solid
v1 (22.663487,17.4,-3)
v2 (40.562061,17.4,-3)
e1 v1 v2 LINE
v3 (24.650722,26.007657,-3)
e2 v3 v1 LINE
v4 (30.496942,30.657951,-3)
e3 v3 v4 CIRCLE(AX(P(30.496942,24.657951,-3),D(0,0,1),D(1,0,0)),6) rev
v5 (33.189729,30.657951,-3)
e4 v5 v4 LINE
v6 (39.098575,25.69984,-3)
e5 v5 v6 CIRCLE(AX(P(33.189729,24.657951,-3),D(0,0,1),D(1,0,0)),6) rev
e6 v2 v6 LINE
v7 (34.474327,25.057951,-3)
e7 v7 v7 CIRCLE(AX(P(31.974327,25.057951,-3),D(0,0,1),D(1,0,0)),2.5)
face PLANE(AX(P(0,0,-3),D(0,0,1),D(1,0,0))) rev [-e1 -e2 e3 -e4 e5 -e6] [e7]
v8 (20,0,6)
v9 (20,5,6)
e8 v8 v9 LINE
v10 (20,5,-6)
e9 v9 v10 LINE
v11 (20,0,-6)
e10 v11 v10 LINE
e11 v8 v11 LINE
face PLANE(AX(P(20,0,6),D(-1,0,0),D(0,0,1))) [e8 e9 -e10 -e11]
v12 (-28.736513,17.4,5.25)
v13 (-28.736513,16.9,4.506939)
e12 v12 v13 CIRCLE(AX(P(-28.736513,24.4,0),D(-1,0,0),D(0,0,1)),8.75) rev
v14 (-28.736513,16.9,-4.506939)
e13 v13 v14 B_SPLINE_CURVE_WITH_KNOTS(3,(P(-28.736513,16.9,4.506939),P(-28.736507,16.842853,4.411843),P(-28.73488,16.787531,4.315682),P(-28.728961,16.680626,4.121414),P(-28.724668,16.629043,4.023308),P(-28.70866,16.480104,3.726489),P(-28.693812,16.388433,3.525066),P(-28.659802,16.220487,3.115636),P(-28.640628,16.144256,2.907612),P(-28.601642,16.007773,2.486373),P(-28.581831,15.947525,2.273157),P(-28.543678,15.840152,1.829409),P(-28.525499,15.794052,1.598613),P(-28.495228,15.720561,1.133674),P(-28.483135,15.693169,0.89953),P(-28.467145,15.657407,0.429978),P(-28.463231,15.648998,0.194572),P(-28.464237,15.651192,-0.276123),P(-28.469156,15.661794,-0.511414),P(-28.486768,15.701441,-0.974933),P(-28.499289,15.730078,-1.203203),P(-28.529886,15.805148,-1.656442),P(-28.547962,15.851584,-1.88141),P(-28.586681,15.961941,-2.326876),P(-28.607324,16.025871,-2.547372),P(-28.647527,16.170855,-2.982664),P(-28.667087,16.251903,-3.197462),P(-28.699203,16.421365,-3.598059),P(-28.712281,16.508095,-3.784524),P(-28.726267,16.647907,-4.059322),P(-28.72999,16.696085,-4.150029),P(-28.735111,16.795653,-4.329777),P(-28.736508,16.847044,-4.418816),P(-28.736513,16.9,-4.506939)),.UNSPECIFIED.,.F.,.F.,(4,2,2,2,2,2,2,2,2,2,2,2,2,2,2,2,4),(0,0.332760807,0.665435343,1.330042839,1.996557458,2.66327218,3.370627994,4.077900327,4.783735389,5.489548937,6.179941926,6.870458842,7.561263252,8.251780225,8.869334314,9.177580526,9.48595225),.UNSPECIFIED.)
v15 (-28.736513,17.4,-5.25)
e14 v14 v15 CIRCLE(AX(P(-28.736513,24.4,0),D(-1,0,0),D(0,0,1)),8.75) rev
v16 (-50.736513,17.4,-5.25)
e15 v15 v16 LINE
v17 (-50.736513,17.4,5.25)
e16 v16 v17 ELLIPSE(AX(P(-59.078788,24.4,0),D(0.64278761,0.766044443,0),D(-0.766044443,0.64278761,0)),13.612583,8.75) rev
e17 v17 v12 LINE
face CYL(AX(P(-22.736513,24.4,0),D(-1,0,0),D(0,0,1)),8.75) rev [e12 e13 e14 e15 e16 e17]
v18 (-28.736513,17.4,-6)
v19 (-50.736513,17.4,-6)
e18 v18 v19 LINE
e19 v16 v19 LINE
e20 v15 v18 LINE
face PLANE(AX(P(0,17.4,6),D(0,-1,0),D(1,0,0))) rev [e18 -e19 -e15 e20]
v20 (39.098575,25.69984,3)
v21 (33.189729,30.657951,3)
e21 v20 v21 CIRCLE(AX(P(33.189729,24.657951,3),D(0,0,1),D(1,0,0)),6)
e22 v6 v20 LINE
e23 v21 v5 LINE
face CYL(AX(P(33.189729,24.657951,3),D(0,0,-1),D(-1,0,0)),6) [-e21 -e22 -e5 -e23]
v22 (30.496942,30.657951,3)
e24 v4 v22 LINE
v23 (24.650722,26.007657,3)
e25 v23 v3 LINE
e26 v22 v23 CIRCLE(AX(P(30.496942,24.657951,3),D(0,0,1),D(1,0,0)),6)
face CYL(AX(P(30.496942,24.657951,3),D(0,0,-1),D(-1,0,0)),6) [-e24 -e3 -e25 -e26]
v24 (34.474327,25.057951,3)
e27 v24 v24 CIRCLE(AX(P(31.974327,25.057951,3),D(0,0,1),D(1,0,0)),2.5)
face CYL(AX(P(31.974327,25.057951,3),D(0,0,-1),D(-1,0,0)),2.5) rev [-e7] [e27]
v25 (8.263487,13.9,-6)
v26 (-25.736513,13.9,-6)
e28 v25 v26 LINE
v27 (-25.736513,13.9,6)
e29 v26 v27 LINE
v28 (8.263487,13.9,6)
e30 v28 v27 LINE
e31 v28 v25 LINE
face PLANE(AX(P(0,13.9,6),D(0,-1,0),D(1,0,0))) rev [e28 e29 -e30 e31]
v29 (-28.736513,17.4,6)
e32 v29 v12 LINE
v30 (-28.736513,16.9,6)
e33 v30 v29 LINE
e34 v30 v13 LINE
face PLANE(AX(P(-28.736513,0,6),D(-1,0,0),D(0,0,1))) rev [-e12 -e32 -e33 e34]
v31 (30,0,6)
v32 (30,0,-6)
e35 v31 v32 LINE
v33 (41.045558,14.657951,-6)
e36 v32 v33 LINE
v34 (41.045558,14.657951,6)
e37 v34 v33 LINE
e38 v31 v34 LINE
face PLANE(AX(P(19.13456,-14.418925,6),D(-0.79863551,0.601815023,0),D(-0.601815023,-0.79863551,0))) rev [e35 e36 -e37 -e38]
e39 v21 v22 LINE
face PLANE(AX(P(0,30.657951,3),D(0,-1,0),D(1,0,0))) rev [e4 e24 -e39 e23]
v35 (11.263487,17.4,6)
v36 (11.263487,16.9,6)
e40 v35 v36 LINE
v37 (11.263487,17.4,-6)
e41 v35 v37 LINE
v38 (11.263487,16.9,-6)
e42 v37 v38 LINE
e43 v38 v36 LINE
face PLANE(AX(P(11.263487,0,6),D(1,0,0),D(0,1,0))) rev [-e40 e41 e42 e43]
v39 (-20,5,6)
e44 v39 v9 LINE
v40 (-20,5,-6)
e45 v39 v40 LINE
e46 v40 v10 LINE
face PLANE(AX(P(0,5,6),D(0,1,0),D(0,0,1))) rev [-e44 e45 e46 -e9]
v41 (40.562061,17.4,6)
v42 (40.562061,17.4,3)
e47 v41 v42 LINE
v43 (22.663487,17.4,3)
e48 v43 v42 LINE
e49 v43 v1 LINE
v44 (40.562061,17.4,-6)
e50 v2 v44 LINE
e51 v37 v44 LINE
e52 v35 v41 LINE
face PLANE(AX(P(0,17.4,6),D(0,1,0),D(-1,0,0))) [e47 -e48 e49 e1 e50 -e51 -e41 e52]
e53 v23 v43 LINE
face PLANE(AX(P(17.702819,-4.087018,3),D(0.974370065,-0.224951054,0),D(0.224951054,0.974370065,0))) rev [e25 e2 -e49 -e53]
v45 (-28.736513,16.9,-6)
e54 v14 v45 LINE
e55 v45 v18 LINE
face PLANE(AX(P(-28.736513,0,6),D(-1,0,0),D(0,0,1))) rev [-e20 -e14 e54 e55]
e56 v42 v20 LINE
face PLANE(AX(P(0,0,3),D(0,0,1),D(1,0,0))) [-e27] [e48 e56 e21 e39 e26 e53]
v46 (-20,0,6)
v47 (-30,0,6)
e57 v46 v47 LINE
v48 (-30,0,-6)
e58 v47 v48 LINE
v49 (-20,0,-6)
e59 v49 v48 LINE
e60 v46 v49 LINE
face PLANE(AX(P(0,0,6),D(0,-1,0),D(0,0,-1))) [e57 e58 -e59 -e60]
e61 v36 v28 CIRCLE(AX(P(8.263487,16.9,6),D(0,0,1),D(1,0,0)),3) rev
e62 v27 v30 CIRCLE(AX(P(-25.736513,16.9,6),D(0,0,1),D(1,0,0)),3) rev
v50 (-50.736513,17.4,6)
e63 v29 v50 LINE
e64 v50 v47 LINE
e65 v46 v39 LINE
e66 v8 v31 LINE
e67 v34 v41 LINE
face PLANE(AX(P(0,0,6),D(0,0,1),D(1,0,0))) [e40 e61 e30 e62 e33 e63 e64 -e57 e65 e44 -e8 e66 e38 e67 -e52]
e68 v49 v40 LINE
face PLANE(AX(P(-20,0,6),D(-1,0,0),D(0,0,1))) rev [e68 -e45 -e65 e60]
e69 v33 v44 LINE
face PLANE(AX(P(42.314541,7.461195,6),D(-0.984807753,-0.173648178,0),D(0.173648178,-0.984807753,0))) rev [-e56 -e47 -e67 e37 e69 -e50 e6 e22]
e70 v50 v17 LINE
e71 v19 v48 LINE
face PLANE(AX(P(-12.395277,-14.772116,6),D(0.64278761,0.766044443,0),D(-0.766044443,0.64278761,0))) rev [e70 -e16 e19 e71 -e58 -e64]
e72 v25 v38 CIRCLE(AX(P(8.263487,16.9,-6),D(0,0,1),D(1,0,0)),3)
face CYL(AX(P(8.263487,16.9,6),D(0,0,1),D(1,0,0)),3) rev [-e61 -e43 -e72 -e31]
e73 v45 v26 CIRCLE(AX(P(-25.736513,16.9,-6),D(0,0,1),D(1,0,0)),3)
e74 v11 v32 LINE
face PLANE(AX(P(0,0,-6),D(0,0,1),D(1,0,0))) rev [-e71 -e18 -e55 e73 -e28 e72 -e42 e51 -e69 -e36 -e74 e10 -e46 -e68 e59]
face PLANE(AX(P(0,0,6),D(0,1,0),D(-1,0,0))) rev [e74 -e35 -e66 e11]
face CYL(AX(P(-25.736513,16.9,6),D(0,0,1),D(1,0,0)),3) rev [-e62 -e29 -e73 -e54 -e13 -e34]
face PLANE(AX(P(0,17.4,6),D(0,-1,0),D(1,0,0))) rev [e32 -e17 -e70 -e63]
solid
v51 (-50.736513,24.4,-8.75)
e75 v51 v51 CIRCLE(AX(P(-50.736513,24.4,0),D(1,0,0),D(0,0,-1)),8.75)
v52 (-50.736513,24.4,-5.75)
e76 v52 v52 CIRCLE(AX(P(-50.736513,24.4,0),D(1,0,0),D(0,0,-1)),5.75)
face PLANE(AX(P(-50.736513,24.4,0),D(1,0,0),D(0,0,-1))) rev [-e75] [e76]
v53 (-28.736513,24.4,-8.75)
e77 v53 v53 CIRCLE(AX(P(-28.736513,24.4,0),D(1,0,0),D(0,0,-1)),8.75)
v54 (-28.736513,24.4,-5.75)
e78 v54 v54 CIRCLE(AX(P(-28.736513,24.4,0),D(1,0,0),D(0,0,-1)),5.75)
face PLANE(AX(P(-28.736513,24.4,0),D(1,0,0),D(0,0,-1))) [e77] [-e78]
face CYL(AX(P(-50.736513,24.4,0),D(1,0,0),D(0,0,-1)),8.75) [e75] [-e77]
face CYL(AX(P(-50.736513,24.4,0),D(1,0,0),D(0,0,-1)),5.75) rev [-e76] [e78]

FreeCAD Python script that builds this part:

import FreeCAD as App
import Part
import Sketcher
Q = App.Units.Quantity


def edges_at(feature, points):
    """Names of the edges that pass closest to the given points."""
    edges = feature.Shape.Edges
    near = lambda p: min(range(len(edges)), key=lambda i: edges[i].distToShape(Part.Vertex(*p))[0])
    return sorted({f"Edge{near(p) + 1}" for p in points})

doc = App.newDocument("Part")
body = doc.addObject("PartDesign::Body", "Body")

# Sketch on XY plane
sketch1 = body.newObject("Sketcher::SketchObject", "Sketch")
sketch1.AttachmentSupport = (doc.getObject("XY_Plane"), [""])
sketch1.MapMode = "FlatFace"
sketch1.addGeometry(Part.LineSegment(App.Vector(20, 0, 0), App.Vector(30, 0, 0)), False)
sketch1.addGeometry(Part.LineSegment(App.Vector(30, 0, 0), App.Vector(41.045558, 14.657951, 0)), False)
sketch1.addGeometry(Part.LineSegment(App.Vector(41.045558, 14.657951, 0), App.Vector(40.562061, 17.4, 0)), False)
sketch1.addGeometry(Part.LineSegment(App.Vector(40.562061, 17.4, 0), App.Vector(11.263487, 17.4, 0)), False)
sketch1.addGeometry(Part.LineSegment(App.Vector(11.263487, 17.4, 0), App.Vector(11.263487, 13.9, 0)), False)
sketch1.addGeometry(Part.LineSegment(App.Vector(11.263487, 13.9, 0), App.Vector(-28.736513, 13.9, 0)), False)
sketch1.addGeometry(Part.LineSegment(App.Vector(-28.736513, 13.9, 0), App.Vector(-28.736513, 17.4, 0)), False)
sketch1.addGeometry(Part.LineSegment(App.Vector(-28.736513, 17.4, 0), App.Vector(-50.736513, 17.4, 0)), False)
sketch1.addGeometry(Part.LineSegment(App.Vector(-50.736513, 17.4, 0), App.Vector(-30, 0, 0)), False)
sketch1.addGeometry(Part.LineSegment(App.Vector(-30, 0, 0), App.Vector(-20, 0, 0)), False)
sketch1.addGeometry(Part.LineSegment(App.Vector(-20, 0, 0), App.Vector(-20, 5, 0)), False)
sketch1.addGeometry(Part.LineSegment(App.Vector(-20, 5, 0), App.Vector(20, 5, 0)), False)
sketch1.addGeometry(Part.LineSegment(App.Vector(20, 5, 0), App.Vector(20, 0, 0)), False)
sketch1.addConstraint(Sketcher.Constraint("Coincident", 0, 2, 1, 1))
sketch1.addConstraint(Sketcher.Constraint("Coincident", 1, 2, 2, 1))
sketch1.addConstraint(Sketcher.Constraint("Coincident", 2, 2, 3, 1))
sketch1.addConstraint(Sketcher.Constraint("Coincident", 3, 2, 4, 1))
sketch1.addConstraint(Sketcher.Constraint("Coincident", 4, 2, 5, 1))
sketch1.addConstraint(Sketcher.Constraint("Coincident", 5, 2, 6, 1))
sketch1.addConstraint(Sketcher.Constraint("Coincident", 6, 2, 7, 1))
sketch1.addConstraint(Sketcher.Constraint("Coincident", 7, 2, 8, 1))
sketch1.addConstraint(Sketcher.Constraint("Coincident", 8, 2, 9, 1))
sketch1.addConstraint(Sketcher.Constraint("Coincident", 9, 2, 10, 1))
sketch1.addConstraint(Sketcher.Constraint("Coincident", 10, 2, 11, 1))
sketch1.addConstraint(Sketcher.Constraint("Coincident", 11, 2, 12, 1))
sketch1.addConstraint(Sketcher.Constraint("Coincident", 12, 2, 0, 1))
sketch1.addConstraint(Sketcher.Constraint("Horizontal", 0))
sketch1.addConstraint(Sketcher.Constraint("Horizontal", 3))
sketch1.addConstraint(Sketcher.Constraint("Vertical", 4))
sketch1.addConstraint(Sketcher.Constraint("Horizontal", 5))
sketch1.addConstraint(Sketcher.Constraint("Vertical", 6))
sketch1.addConstraint(Sketcher.Constraint("Horizontal", 7))
sketch1.addConstraint(Sketcher.Constraint("Horizontal", 9))
sketch1.addConstraint(Sketcher.Constraint("Vertical", 10))
sketch1.addConstraint(Sketcher.Constraint("Horizontal", 11))
sketch1.addConstraint(Sketcher.Constraint("Vertical", 12))
sketch1.addConstraint(Sketcher.Constraint("Symmetric", 0, 2, 8, 2, -1, 1))
sketch1.addConstraint(Sketcher.Constraint("Symmetric", 9, 2, 12, 2, -2))
sketch1.addConstraint(Sketcher.Constraint("Horizontal", 3, 2, 6, 2))
sketch1.addConstraint(Sketcher.Constraint("Equal", 5, 11))
sketch1.addConstraint(Sketcher.Constraint("DistanceX", 0, 1, 0, 2, Q("10 mm")))
sketch1.addConstraint(Sketcher.Constraint("DistanceX", 5, 2, 5, 1, Q("40 mm")))
sketch1.addConstraint(Sketcher.Constraint("DistanceX", 7, 2, 7, 1, Q("22 mm")))
sketch1.addConstraint(Sketcher.Constraint("DistanceY", 10, 1, 10, 2, Q("5 mm")))
sketch1.addConstraint(Sketcher.Constraint("Angle", 1, Q("53 deg")))
sketch1.addConstraint(Sketcher.Constraint("Angle", 2, Q("100 deg")))
sketch1.addConstraint(Sketcher.Constraint("Angle", 8, Q("-40 deg")))
sketch1.addConstraint(Sketcher.Constraint("DistanceY", 4, 2, 4, 1, Q("3.5 mm")))
sketch1.addConstraint(Sketcher.Constraint("DistanceY", -1, 1, 2, 2, Q("17.4 mm")))
sketch1.addConstraint(Sketcher.Constraint("Distance", 2, Q("2.78435 mm")))
pad1 = body.newObject("PartDesign::Pad", "Pad")
pad1.Profile = sketch1
pad1.Length = 12
pad1.Midplane = True

# Sketch on XY plane
sketch2 = body.newObject("Sketcher::SketchObject", "Sketch001")
sketch2.AttachmentSupport = (doc.getObject("XY_Plane"), [""])
sketch2.MapMode = "FlatFace"
sketch2.addGeometry(Part.LineSegment(App.Vector(22.663487, 17.4, 0), App.Vector(40.562061, 17.4, 0)), False)
sketch2.addGeometry(Part.LineSegment(App.Vector(40.562061, 17.4, 0), App.Vector(38.224327, 30.657951, 0)), False)
sketch2.addGeometry(Part.LineSegment(App.Vector(38.224327, 30.657951, 0), App.Vector(25.724327, 30.657951, 0)), False)
sketch2.addGeometry(Part.LineSegment(App.Vector(25.724327, 30.657951, 0), App.Vector(22.663487, 17.4, 0)), False)
sketch2.addGeometry(Part.Circle(App.Vector(31.974327, 25.057951, 0), App.Vector(0, 0, 1), 2.5), False)
sketch2.addConstraint(Sketcher.Constraint("Coincident", 0, 2, 1, 1))
sketch2.addConstraint(Sketcher.Constraint("Coincident", 1, 2, 2, 1))
sketch2.addConstraint(Sketcher.Constraint("Coincident", 2, 2, 3, 1))
sketch2.addConstraint(Sketcher.Constraint("Coincident", 3, 2, 0, 1))
sketch2.addConstraint(Sketcher.Constraint("Horizontal", 0))
sketch2.addConstraint(Sketcher.Constraint("Horizontal", 2))
sketch2.addConstraint(Sketcher.Constraint("Diameter", 4, Q("5 mm")))
sketch2.addConstraint(Sketcher.Constraint("Angle", 1, Q("100 deg")))
sketch2.addConstraint(Sketcher.Constraint("Angle", 3, Q("-103 deg")))
sketch2.addConstraint(Sketcher.Constraint("DistanceX", 2, 2, 2, 1, Q("12.5 mm")))
sketch2.addConstraint(Sketcher.Constraint("DistanceY", -1, 1, 0, 2, Q("17.4 mm")))
sketch2.addConstraint(Sketcher.Constraint("DistanceY", 4, 3, 1, 2, Q("5.6 mm")))
sketch2.addConstraint(Sketcher.Constraint("DistanceX", 4, 3, 1, 2, Q("6.25 mm")))
sketch2.addConstraint(Sketcher.Constraint("Distance", 3, Q("13.60669 mm")))
sketch2.addConstraint(Sketcher.Constraint("DistanceX", -1, 1, 0, 2, Q("40.562061 mm")))
pad2 = body.newObject("PartDesign::Pad", "Pad001")
pad2.Profile = sketch2
pad2.Length = 6
pad2.Midplane = True
doc.recompute()

fillet = body.newObject("PartDesign::Fillet", "Fillet")
fillet.Base = (pad2, edges_at(pad2, [(-28.737, 13.9, 0), (11.263, 13.9, 0)]))
fillet.Radius = 3
doc.recompute()

fillet2 = body.newObject("PartDesign::Fillet", "Fillet001")
fillet2.Base = (fillet, edges_at(fillet, [(25.724, 30.658, 0), (38.224, 30.658, 0)]))
fillet2.Radius = 6

# Sketch on YZ plane
sketch3 = body.newObject("Sketcher::SketchObject", "Sketch002")
sketch3.AttachmentSupport = (doc.getObject("YZ_Plane"), [""])
sketch3.MapMode = "FlatFace"
sketch3.AttachmentOffset = App.Placement(App.Vector(0, 0, -50.736513), App.Rotation())
sketch3.addGeometry(Part.Circle(App.Vector(24.4, 0, 0), App.Vector(0, 0, 1), 8.75), False)
sketch3.addConstraint(Sketcher.Constraint("PointOnObject", 0, 3, -1))
sketch3.addConstraint(Sketcher.Constraint("Diameter", 0, Q("17.5 mm")))
sketch3.addConstraint(Sketcher.Constraint("DistanceX", -1, 1, 0, 3, Q("24.4 mm")))
pocket1 = body.newObject("PartDesign::Pocket", "Pocket")
pocket1.Profile = sketch3
pocket1.Length = 22.272822
pocket1.Reversed = True
body2 = doc.addObject("PartDesign::Body", "Body001")

# Sketch on YZ plane
sketch4 = body2.newObject("Sketcher::SketchObject", "Sketch003")
sketch4.AttachmentSupport = (doc.getObject("YZ_Plane001"), [""])
sketch4.MapMode = "FlatFace"
sketch4.AttachmentOffset = App.Placement(App.Vector(0, 0, -28.736513), App.Rotation())
sketch4.addGeometry(Part.Circle(App.Vector(24.4, 0, 0), App.Vector(0, 0, 1), 8.75), False)
sketch4.addGeometry(Part.Circle(App.Vector(24.4, 0, 0), App.Vector(0, 0, 1), 5.75), False)
sketch4.addConstraint(Sketcher.Constraint("Coincident", 1, 3, 0, 3))
sketch4.addConstraint(Sketcher.Constraint("PointOnObject", 0, 3, -1))
sketch4.addConstraint(Sketcher.Constraint("Diameter", 0, Q("17.5 mm")))
sketch4.addConstraint(Sketcher.Constraint("Diameter", 1, Q("11.5 mm")))
sketch4.addConstraint(Sketcher.Constraint("DistanceX", -1, 1, 0, 3, Q("24.4 mm")))
pad3 = body2.newObject("PartDesign::Pad", "Pad002")
pad3.Profile = sketch4
pad3.Length = 22
pad3.Reversed = True

doc.recompute()
